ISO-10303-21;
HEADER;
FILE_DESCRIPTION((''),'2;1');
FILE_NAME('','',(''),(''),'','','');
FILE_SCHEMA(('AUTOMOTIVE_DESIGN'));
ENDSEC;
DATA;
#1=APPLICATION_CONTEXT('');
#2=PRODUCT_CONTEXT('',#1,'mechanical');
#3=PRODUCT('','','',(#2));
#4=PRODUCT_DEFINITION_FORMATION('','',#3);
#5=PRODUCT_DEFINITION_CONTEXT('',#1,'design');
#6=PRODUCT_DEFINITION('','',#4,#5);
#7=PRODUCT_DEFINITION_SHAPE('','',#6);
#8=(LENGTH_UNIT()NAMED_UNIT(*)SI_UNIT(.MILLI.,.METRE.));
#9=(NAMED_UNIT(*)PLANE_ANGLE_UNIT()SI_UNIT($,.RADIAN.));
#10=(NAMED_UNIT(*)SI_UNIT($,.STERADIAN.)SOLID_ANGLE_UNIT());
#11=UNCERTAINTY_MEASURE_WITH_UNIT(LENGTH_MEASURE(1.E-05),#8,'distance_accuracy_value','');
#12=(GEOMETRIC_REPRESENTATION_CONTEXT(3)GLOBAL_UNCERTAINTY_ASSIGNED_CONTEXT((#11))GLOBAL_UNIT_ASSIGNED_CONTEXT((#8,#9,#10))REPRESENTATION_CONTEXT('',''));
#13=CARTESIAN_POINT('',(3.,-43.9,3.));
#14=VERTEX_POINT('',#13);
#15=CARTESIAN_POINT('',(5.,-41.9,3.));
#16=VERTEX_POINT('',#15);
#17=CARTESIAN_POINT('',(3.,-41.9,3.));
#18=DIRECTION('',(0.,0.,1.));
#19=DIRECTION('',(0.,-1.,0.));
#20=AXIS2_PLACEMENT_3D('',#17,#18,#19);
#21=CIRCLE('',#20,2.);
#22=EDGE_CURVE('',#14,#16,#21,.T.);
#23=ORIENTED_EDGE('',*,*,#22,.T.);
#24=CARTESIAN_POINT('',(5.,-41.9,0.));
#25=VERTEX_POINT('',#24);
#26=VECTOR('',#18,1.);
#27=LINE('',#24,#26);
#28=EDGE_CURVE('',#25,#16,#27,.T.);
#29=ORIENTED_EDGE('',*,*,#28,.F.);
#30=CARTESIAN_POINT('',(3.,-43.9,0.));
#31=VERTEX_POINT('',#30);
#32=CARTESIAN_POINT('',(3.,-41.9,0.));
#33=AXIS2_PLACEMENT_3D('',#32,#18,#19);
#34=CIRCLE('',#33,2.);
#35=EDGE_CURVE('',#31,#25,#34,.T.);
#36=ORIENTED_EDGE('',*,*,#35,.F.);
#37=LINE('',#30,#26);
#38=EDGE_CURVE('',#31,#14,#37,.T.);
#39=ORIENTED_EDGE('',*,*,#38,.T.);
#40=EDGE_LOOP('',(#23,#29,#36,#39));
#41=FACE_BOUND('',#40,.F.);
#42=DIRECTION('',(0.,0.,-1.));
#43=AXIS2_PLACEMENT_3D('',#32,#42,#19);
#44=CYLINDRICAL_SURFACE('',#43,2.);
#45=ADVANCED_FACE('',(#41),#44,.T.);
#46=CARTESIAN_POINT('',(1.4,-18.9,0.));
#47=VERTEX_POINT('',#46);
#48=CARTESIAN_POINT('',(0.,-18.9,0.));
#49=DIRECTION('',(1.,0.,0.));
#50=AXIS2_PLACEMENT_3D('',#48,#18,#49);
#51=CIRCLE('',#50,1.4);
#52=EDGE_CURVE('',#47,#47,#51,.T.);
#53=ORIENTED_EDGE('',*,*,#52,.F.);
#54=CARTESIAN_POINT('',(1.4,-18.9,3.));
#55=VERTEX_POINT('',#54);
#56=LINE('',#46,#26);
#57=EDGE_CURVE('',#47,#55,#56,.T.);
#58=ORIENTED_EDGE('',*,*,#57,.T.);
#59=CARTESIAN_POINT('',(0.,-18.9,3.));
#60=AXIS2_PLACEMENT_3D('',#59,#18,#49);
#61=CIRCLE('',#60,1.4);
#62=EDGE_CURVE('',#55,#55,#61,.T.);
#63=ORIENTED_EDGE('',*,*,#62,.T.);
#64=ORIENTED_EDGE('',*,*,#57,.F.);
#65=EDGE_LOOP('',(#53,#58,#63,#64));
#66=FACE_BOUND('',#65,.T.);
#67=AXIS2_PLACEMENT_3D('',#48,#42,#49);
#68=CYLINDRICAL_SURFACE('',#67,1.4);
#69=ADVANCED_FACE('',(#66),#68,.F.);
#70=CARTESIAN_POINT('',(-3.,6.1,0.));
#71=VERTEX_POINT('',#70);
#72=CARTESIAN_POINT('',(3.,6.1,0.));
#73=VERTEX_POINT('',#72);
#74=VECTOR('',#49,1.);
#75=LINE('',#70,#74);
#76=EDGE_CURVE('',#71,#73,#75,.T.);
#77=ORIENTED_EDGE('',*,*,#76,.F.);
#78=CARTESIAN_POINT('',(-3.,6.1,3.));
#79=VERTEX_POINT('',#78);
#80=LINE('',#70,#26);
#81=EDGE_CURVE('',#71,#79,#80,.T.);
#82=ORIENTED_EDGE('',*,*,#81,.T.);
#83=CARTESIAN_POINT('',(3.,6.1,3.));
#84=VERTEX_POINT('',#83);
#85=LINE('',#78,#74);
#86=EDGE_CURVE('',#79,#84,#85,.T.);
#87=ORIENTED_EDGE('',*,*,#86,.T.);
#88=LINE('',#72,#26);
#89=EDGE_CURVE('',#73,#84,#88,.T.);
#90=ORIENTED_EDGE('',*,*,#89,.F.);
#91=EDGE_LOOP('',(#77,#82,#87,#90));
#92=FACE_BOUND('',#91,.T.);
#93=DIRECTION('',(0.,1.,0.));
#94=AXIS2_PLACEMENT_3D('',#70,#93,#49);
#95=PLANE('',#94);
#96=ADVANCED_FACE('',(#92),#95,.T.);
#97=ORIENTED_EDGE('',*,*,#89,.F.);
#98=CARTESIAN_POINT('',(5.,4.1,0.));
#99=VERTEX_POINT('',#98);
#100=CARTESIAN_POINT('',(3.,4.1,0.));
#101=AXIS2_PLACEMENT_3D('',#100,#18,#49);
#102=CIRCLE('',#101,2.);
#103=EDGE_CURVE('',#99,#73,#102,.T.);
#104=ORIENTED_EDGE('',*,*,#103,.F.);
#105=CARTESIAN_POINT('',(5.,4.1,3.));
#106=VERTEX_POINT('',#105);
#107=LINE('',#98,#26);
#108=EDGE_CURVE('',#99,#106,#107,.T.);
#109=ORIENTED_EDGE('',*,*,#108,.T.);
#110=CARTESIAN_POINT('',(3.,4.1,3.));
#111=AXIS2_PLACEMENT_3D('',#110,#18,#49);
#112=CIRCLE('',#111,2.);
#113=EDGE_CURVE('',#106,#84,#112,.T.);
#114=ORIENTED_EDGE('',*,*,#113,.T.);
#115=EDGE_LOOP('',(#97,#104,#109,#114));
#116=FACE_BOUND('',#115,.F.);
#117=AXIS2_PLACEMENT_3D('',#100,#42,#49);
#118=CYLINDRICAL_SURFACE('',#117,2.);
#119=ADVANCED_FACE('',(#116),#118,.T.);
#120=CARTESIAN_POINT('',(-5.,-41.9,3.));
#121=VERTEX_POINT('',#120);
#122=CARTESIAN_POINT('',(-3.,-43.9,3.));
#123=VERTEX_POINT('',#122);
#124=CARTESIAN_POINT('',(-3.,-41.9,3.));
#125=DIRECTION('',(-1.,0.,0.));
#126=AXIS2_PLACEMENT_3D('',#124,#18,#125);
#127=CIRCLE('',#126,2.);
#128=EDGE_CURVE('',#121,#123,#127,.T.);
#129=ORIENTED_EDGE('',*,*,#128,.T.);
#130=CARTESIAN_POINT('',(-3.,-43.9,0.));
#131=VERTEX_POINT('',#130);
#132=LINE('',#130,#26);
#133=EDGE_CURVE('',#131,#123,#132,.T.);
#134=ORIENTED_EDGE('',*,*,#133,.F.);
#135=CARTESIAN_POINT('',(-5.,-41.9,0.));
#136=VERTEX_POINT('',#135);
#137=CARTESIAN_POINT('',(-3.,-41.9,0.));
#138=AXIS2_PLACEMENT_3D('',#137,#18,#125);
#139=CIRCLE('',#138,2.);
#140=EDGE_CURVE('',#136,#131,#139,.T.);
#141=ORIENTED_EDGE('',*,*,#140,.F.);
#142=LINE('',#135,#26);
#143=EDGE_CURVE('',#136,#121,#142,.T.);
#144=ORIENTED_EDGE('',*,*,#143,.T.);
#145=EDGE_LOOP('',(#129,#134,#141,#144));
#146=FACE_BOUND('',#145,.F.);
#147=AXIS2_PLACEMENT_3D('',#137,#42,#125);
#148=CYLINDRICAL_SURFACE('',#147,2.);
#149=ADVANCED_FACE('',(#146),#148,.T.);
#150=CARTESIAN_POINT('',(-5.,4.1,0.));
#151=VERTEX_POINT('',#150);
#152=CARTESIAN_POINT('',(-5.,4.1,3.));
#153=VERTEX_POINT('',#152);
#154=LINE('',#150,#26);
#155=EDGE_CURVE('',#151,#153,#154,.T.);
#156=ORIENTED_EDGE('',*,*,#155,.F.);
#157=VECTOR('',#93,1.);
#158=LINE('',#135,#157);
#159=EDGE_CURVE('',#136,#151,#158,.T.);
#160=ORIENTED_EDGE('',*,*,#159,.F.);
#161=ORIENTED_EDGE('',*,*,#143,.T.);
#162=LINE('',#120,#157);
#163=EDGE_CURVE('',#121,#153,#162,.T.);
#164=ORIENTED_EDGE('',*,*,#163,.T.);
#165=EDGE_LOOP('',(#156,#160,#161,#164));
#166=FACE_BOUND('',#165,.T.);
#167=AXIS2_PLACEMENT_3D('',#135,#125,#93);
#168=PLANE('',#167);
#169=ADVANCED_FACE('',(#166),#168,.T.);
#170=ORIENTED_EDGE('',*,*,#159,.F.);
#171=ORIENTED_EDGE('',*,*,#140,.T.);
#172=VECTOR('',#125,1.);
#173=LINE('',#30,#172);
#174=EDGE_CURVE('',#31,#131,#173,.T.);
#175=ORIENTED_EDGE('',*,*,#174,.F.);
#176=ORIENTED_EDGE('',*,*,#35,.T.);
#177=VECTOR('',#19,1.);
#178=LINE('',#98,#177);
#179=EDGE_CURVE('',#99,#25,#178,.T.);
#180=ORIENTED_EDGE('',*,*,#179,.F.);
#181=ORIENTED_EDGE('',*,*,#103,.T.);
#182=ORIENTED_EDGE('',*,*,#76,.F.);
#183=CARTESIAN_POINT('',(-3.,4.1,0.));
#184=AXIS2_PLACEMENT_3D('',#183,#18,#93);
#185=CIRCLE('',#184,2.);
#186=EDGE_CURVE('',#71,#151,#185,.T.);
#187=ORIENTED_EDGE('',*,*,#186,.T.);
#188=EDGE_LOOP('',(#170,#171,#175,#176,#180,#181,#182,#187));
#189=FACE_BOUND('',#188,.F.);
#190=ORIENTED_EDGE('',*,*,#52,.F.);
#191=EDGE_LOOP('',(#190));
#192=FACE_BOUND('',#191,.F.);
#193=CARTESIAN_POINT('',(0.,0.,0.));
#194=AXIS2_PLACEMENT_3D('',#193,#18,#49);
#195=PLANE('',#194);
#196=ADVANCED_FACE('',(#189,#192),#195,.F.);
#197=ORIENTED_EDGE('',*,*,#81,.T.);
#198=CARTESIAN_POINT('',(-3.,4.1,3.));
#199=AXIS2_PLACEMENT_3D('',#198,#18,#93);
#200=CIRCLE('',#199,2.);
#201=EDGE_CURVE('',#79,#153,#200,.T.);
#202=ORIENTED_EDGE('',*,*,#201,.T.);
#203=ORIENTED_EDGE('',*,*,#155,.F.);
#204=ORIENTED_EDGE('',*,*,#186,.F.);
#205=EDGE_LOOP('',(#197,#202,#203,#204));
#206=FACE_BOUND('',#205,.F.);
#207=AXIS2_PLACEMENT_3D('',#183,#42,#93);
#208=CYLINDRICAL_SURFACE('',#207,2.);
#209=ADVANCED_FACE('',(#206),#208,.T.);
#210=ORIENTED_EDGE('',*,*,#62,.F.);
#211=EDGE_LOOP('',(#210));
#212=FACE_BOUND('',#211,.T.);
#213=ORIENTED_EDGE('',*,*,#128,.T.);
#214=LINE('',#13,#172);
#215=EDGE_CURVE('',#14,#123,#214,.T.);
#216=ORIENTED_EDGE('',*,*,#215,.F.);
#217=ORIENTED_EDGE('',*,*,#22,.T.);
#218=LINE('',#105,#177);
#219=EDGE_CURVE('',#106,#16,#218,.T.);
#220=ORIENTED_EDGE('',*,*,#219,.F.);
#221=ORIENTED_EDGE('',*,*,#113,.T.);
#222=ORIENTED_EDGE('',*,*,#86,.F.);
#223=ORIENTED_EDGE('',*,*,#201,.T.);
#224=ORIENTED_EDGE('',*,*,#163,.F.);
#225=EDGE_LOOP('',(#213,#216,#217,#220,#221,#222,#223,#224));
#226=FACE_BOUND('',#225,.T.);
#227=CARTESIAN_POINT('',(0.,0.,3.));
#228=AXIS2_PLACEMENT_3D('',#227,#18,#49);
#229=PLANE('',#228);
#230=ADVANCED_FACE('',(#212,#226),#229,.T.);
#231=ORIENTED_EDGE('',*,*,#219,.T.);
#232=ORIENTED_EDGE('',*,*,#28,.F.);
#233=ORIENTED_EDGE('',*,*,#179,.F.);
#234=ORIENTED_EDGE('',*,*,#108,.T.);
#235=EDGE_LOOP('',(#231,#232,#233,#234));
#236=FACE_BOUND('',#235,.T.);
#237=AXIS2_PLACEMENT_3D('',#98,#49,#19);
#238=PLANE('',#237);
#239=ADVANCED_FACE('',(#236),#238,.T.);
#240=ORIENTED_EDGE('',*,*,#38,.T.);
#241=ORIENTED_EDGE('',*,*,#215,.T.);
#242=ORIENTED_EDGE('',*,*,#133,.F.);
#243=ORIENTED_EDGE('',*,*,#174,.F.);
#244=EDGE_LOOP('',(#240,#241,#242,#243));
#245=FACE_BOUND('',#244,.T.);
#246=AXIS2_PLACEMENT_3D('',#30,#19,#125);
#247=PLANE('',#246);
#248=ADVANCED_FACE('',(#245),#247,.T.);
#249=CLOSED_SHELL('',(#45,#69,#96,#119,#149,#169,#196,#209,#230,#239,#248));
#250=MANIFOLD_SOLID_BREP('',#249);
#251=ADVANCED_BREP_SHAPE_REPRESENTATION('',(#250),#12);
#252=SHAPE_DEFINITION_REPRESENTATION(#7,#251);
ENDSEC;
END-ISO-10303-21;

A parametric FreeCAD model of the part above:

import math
import FreeCAD as App
import Part
import Sketcher
Q = App.Units.Quantity

doc = App.newDocument("Part")
body = doc.addObject("PartDesign::Body", "Body")

sketch1 = body.newObject("Sketcher::SketchObject", "Sketch")
sketch1.AttachmentSupport = (doc.getObject("XY_Plane"), [""])
sketch1.MapMode = "FlatFace"
sketch1.addGeometry(Part.LineSegment(App.Vector(-3, -43.9, 0), App.Vector(3, -43.9, 0)), False)
sketch1.addGeometry(Part.ArcOfCircle(Part.Circle(App.Vector(3, -41.9, 0), App.Vector(0, 0, 1), 2), math.radians(-90), math.radians(0)), False)
sketch1.addGeometry(Part.LineSegment(App.Vector(5, -41.9, 0), App.Vector(5, 4.1, 0)), False)
sketch1.addGeometry(Part.ArcOfCircle(Part.Circle(App.Vector(3, 4.1, 0), App.Vector(0, 0, 1), 2), math.radians(0), math.radians(90)), False)
sketch1.addGeometry(Part.LineSegment(App.Vector(3, 6.1, 0), App.Vector(-3, 6.1, 0)), False)
sketch1.addGeometry(Part.ArcOfCircle(Part.Circle(App.Vector(-3, 4.1, 0), App.Vector(0, 0, 1), 2), math.radians(90), math.radians(180)), False)
sketch1.addGeometry(Part.LineSegment(App.Vector(-5, 4.1, 0), App.Vector(-5, -41.9, 0)), False)
sketch1.addGeometry(Part.ArcOfCircle(Part.Circle(App.Vector(-3, -41.9, 0), App.Vector(0, 0, 1), 2), math.radians(180), math.radians(270)), False)
sketch1.addGeometry(Part.Circle(App.Vector(0, -18.9, 0), App.Vector(0, 0, 1), 1.4), False)
sketch1.addConstraint(Sketcher.Constraint("Tangent", 0, 2, 1, 1))
sketch1.addConstraint(Sketcher.Constraint("Tangent", 1, 2, 2, 1))
sketch1.addConstraint(Sketcher.Constraint("Tangent", 2, 2, 3, 1))
sketch1.addConstraint(Sketcher.Constraint("Tangent", 3, 2, 4, 1))
sketch1.addConstraint(Sketcher.Constraint("Tangent", 4, 2, 5, 1))
sketch1.addConstraint(Sketcher.Constraint("Tangent", 5, 2, 6, 1))
sketch1.addConstraint(Sketcher.Constraint("Tangent", 6, 2, 7, 1))
sketch1.addConstraint(Sketcher.Constraint("Tangent", 7, 2, 0, 1))
sketch1.addConstraint(Sketcher.Constraint("Horizontal", 0))
sketch1.addConstraint(Sketcher.Constraint("Vertical", 2))
sketch1.addConstraint(Sketcher.Constraint("Horizontal", 4))
sketch1.addConstraint(Sketcher.Constraint("Vertical", 6))
sketch1.addConstraint(Sketcher.Constraint("Equal", 1, 3))
sketch1.addConstraint(Sketcher.Constraint("Equal", 3, 5))
sketch1.addConstraint(Sketcher.Constraint("Equal", 5, 7))
sketch1.addConstraint(Sketcher.Constraint("PointOnObject", 8, 3, -2))
sketch1.addConstraint(Sketcher.Constraint("Radius", 1, Q("2 mm")))
sketch1.addConstraint(Sketcher.Constraint("DistanceX", 5, 2, 2, 2, Q("10 mm")))
sketch1.addConstraint(Sketcher.Constraint("Diameter", 8, Q("2.8 mm")))
sketch1.addConstraint(Sketcher.Constraint("DistanceY", 2, 1, 2, 2, Q("46 mm")))
sketch1.addConstraint(Sketcher.Constraint("DistanceX", -1, 1, 1, 3, Q("3 mm")))
sketch1.addConstraint(Sketcher.Constraint("DistanceY", 1, 3, 8, 3, Q("23 mm")))
sketch1.addConstraint(Sketcher.Constraint("DistanceY", 1, 3, -1, 1, Q("41.9 mm")))
pad1 = body.newObject("PartDesign::Pad", "Pad")
pad1.Profile = sketch1
pad1.Length = 3

doc.recompute()
